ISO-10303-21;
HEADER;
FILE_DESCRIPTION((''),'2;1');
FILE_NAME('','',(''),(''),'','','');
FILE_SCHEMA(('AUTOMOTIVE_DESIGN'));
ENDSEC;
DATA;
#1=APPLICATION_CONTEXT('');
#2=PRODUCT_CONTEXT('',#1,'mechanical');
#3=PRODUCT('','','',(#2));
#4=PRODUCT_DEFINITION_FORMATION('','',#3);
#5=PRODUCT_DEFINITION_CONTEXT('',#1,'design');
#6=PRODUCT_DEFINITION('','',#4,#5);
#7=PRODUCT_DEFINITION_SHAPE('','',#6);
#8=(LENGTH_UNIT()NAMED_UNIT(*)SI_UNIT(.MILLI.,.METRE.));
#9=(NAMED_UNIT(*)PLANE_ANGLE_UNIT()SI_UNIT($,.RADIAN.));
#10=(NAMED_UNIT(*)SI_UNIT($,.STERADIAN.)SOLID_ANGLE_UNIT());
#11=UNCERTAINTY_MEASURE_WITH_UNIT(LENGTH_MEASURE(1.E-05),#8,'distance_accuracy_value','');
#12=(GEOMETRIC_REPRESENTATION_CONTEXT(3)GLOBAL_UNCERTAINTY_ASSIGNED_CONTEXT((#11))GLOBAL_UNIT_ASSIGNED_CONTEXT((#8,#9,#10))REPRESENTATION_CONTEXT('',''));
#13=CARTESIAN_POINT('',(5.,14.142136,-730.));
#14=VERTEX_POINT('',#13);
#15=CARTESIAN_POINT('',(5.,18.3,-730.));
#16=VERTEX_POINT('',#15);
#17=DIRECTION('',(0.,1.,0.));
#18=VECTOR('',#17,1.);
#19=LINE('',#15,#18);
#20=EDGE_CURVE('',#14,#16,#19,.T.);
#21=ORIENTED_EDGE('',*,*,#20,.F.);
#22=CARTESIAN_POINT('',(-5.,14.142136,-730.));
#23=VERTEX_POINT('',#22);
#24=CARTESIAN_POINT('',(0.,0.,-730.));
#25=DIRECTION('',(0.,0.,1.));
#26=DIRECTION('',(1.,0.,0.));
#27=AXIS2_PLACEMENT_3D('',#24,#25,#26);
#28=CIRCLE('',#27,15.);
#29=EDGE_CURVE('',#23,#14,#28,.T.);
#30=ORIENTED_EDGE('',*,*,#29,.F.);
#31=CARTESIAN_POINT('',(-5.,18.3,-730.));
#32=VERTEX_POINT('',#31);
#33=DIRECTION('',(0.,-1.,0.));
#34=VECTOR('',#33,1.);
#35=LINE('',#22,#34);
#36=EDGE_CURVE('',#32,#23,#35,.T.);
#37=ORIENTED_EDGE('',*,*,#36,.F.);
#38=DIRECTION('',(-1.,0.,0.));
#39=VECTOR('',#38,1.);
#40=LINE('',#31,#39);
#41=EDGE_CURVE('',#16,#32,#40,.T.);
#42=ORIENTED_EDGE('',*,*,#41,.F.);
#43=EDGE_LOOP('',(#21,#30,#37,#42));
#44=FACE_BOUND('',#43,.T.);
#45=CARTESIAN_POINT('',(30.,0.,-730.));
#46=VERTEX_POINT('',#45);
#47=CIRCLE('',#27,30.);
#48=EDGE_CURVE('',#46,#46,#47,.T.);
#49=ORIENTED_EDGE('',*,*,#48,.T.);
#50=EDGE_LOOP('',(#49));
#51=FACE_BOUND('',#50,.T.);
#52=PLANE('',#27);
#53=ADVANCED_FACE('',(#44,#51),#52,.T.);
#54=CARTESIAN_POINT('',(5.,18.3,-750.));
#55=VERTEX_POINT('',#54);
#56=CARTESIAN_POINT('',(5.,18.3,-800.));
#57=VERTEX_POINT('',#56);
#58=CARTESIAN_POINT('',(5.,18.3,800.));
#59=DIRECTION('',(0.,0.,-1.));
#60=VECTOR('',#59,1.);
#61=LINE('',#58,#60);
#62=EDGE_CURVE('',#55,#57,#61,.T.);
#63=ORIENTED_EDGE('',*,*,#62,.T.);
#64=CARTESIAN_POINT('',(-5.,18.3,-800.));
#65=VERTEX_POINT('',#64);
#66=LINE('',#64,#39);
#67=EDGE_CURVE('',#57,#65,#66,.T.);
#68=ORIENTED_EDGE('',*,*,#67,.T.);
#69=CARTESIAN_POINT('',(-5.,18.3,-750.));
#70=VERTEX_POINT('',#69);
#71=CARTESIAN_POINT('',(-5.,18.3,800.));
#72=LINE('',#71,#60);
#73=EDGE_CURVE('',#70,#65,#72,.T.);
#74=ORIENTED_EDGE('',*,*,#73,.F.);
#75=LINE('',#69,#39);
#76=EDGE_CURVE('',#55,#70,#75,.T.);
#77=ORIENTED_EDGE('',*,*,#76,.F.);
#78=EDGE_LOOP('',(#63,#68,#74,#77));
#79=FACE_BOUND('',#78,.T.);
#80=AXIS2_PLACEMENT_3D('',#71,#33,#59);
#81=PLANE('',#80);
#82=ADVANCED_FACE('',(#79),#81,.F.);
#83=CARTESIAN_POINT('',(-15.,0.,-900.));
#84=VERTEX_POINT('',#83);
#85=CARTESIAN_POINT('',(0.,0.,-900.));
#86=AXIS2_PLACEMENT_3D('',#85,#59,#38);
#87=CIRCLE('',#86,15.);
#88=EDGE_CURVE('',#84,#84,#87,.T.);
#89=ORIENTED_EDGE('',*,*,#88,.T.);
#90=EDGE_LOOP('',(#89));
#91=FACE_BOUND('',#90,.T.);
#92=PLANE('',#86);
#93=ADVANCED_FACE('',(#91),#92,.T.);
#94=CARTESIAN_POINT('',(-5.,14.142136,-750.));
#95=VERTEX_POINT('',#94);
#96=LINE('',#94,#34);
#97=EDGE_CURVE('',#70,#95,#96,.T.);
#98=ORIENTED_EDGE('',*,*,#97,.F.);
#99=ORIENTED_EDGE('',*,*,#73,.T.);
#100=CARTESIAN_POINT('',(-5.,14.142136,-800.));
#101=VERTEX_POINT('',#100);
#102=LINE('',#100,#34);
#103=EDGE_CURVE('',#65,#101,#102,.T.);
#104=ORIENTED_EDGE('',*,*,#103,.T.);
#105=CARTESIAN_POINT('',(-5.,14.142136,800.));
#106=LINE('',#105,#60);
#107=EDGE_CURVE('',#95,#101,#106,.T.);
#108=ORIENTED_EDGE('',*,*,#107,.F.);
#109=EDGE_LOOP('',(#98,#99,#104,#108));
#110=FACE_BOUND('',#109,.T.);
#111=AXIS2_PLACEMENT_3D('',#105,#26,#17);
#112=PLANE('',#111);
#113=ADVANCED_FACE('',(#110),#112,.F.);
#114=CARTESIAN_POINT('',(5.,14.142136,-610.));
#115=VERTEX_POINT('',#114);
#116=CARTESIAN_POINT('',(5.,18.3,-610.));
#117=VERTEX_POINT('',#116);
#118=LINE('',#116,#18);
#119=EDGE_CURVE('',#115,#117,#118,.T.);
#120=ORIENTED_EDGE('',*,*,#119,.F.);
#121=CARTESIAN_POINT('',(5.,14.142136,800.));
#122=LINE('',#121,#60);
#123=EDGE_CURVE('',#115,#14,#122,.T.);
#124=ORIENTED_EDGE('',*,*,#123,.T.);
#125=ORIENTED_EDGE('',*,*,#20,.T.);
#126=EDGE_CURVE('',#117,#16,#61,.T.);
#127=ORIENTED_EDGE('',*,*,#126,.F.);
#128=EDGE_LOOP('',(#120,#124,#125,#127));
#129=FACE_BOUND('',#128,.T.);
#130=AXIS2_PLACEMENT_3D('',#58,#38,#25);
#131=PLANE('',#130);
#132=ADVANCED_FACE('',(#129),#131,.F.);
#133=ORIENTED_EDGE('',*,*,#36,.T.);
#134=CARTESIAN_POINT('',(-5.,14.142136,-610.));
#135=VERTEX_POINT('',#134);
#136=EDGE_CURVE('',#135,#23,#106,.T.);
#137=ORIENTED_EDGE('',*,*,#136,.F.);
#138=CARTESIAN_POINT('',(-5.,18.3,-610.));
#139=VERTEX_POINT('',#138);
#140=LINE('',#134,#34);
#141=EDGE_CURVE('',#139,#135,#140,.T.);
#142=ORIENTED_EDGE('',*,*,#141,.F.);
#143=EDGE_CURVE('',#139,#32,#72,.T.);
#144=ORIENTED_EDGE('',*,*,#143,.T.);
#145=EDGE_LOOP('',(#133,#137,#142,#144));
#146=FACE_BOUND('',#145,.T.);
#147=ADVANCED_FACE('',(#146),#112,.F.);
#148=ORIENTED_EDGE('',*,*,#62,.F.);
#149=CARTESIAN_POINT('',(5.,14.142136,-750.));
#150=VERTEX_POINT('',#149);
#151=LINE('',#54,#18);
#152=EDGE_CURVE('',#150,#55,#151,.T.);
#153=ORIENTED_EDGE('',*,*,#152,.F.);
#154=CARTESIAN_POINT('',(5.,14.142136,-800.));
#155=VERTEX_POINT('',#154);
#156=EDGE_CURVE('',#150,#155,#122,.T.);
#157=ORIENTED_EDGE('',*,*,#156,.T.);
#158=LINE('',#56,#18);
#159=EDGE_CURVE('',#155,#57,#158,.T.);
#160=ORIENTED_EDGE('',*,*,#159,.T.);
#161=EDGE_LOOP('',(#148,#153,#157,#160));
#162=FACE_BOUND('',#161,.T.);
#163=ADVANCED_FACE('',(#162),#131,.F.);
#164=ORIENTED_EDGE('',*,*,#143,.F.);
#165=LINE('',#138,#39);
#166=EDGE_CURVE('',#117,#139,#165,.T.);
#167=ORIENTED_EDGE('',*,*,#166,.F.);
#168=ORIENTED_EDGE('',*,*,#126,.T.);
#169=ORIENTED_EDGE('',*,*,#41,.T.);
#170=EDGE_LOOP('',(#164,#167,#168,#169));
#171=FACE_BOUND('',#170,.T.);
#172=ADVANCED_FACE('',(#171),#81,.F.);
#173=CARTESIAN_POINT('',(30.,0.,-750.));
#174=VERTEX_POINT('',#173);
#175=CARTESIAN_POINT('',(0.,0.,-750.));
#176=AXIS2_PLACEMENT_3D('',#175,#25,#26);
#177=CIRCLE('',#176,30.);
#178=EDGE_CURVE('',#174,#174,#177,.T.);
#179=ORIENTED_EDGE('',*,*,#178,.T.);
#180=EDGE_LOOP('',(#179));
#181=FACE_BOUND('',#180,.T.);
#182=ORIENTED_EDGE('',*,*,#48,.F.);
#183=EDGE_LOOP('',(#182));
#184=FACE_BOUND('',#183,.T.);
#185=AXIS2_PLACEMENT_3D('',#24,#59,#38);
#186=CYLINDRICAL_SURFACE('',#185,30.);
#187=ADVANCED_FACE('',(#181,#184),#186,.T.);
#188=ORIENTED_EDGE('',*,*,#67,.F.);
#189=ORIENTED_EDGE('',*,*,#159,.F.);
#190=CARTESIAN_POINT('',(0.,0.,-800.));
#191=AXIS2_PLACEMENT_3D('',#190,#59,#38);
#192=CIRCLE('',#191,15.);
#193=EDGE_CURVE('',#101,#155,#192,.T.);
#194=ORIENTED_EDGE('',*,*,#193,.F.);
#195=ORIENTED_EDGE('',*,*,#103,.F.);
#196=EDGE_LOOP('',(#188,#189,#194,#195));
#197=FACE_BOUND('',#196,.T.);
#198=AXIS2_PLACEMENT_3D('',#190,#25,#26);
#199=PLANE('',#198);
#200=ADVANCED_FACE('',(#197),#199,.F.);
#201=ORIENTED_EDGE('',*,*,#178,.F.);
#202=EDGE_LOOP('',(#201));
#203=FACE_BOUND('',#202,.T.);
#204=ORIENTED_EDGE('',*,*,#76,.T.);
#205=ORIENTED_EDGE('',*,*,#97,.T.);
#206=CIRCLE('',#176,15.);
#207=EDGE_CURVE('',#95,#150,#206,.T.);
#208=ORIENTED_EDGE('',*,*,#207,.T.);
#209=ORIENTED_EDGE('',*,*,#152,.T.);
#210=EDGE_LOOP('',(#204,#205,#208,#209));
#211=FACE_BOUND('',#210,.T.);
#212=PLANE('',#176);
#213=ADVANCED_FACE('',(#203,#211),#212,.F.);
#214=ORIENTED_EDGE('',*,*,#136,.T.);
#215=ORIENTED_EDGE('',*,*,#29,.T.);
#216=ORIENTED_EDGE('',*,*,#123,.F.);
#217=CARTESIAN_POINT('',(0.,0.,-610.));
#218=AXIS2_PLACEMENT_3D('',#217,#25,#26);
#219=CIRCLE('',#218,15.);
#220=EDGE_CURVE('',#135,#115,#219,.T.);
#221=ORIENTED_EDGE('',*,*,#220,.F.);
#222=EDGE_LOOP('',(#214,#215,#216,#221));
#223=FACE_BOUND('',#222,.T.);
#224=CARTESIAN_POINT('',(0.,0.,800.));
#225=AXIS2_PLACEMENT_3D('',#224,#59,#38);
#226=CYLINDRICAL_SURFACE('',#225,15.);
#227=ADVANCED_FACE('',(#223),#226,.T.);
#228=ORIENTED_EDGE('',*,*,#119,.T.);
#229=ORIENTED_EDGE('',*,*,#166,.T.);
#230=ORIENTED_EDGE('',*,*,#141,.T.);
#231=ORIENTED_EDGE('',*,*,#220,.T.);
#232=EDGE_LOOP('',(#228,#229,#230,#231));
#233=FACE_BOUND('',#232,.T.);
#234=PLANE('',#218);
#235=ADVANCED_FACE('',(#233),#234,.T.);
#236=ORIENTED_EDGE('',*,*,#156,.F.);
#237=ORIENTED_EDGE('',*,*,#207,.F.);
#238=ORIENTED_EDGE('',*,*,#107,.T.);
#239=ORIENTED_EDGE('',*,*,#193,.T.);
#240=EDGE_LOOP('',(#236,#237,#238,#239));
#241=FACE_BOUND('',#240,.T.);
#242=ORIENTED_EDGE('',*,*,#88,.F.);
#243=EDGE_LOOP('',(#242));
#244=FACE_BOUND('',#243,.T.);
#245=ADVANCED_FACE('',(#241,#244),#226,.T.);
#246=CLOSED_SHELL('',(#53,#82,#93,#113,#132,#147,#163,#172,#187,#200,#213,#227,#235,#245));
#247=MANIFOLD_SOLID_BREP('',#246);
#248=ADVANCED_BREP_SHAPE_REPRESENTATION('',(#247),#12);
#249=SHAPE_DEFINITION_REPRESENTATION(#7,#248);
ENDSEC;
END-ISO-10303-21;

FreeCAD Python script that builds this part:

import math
import FreeCAD as App
import Part
import Sketcher

V = App.Vector

doc = App.newDocument("Part")
params = doc.addObject("Spreadsheet::Sheet", "Params")
for row, (alias, value) in enumerate([
    ("sketch1_radius", "15 mm"),
    ("sketch1_width", "10 mm"),
    ("pad1_length", "1600 mm"),
    ("sketch2_diameter", "60 mm"),
    ("pad2_length", "20 mm"),
    ("sketch3_diameter", "60 mm"),
    ("sketch4_diameter", "30 mm"),
    ("pad3_length", "100 mm"),
    ("sketch5_diameter", "60 mm"),
    ("pocket2_length", "20 mm"),
    ("sketch6_diameter", "60 mm"),
    ("pad4_length", "20 mm"),
], start=1):
    params.set(f"A{row}", alias)
    params.set(f"B{row}", "=" + value)
    params.setAlias(f"B{row}", alias)

body = doc.addObject("PartDesign::Body", "Body")

sketch1 = body.newObject("Sketcher::SketchObject", "Sketch")
sketch1.AttachmentSupport = (doc.getObject("XY_Plane"), [""])
sketch1.MapMode = "FlatFace"
sketch1.addGeometry(Part.LineSegment(V(-5, 18.3, 0), V(-5, 14.1, 0)), False)
sketch1.addGeometry(Part.ArcOfCircle(Part.Circle(V(0, 0, 0), V(0, 0, 1), 15), math.radians(109), math.radians(431)), False)
sketch1.addGeometry(Part.LineSegment(V(5, 14.1, 0), V(5, 18.3, 0)), False)
sketch1.addGeometry(Part.LineSegment(V(5, 18.3, 0), V(-5, 18.3, 0)), False)
sketch1.addConstraint(Sketcher.Constraint("Coincident", 0, 2, 1, 1))
sketch1.addConstraint(Sketcher.Constraint("Coincident", 1, 2, 2, 1))
sketch1.addConstraint(Sketcher.Constraint("Coincident", 2, 2, 3, 1))
sketch1.addConstraint(Sketcher.Constraint("Coincident", 3, 2, 0, 1))
sketch1.addConstraint(Sketcher.Constraint("Vertical", 0))
sketch1.addConstraint(Sketcher.Constraint("Vertical", 2))
sketch1.addConstraint(Sketcher.Constraint("Horizontal", 3))
sketch1.addConstraint(Sketcher.Constraint("Coincident", 1, 3, -1, 1))
sketch1.addConstraint(Sketcher.Constraint("Horizontal", 0, 2, 1, 2))
sketch1.addConstraint(Sketcher.Constraint("Radius", 1, 15.0))
sketch1.addConstraint(Sketcher.Constraint("DistanceX", 3, 2, 3, 1, 10.0))
sketch1.addConstraint(Sketcher.Constraint("DistanceY", -1, 1, 2, 2, 18.3))
sketch1.setExpression("Constraints[9]", "Params.sketch1_radius")
sketch1.setExpression("Constraints[10]", "Params.sketch1_width")
pad1 = body.newObject("PartDesign::Pad", "Pad")
pad1.Profile = sketch1
pad1.setExpression("Length", "Params.pad1_length")
pad1.Midplane = True

sketch2 = body.newObject("Sketcher::SketchObject", "Sketch001")
sketch2.AttachmentSupport = (doc.getObject("XY_Plane"), [""])
sketch2.MapMode = "FlatFace"
sketch2.AttachmentOffset = App.Placement(V(0, 0, 590), App.Rotation())
sketch2.addGeometry(Part.Circle(V(0, 0, 0), V(0, 0, 1), 30), False)
sketch2.addConstraint(Sketcher.Constraint("Coincident", 0, 3, -1, 1))
sketch2.addConstraint(Sketcher.Constraint("Diameter", 0, 60.0))
sketch2.setExpression("Constraints[1]", "Params.sketch2_diameter")
pad2 = body.newObject("PartDesign::Pad", "Pad001")
pad2.Profile = sketch2
pad2.setExpression("Length", "Params.pad2_length")
doc.recompute()

mirrored = body.newObject("PartDesign::Mirrored", "Mirrored")
mirrored.Originals = [pad2]
mirrored.MirrorPlane = (doc.getObject("XY_Plane"), [""])
body.Tip = mirrored

sketch3 = body.newObject("Sketcher::SketchObject", "Sketch002")
sketch3.AttachmentSupport = (doc.getObject("XY_Plane"), [""])
sketch3.MapMode = "FlatFace"
sketch3.AttachmentOffset = App.Placement(V(0, 0, -590), App.Rotation())
sketch3.addGeometry(Part.Circle(V(0, 0, 0), V(0, 0, 1), 30), False)
sketch3.addConstraint(Sketcher.Constraint("Coincident", 0, 3, -1, 1))
sketch3.addConstraint(Sketcher.Constraint("Diameter", 0, 60.0))
sketch3.setExpression("Constraints[1]", "Params.sketch3_diameter")
pocket1 = body.newObject("PartDesign::Pocket", "Pocket")
pocket1.Profile = sketch3
pocket1.Type = "ThroughAll"
pocket1.Reversed = True

sketch4 = body.newObject("Sketcher::SketchObject", "Sketch003")
sketch4.AttachmentSupport = (doc.getObject("XY_Plane"), [""])
sketch4.MapMode = "FlatFace"
sketch4.AttachmentOffset = App.Placement(V(0, 0, -800), App.Rotation())
sketch4.addGeometry(Part.Circle(V(0, 0, 0), V(0, 0, 1), 15), False)
sketch4.addConstraint(Sketcher.Constraint("Coincident", 0, 3, -1, 1))
sketch4.addConstraint(Sketcher.Constraint("Diameter", 0, 30.0))
sketch4.setExpression("Constraints[1]", "Params.sketch4_diameter")
pad3 = body.newObject("PartDesign::Pad", "Pad002")
pad3.Profile = sketch4
pad3.setExpression("Length", "Params.pad3_length")
pad3.Reversed = True

sketch5 = body.newObject("Sketcher::SketchObject", "Sketch004")
sketch5.AttachmentSupport = (doc.getObject("XY_Plane"), [""])
sketch5.MapMode = "FlatFace"
sketch5.AttachmentOffset = App.Placement(V(0, 0, -590), App.Rotation())
sketch5.addGeometry(Part.Circle(V(0, 0, 0), V(0, 0, 1), 30), False)
sketch5.addConstraint(Sketcher.Constraint("Coincident", 0, 3, -1, 1))
sketch5.addConstraint(Sketcher.Constraint("Diameter", 0, 60.0))
sketch5.setExpression("Constraints[1]", "Params.sketch5_diameter")
pocket2 = body.newObject("PartDesign::Pocket", "Pocket001")
pocket2.Profile = sketch5
pocket2.setExpression("Length", "Params.pocket2_length")

sketch6 = body.newObject("Sketcher::SketchObject", "Sketch005")
sketch6.AttachmentSupport = (doc.getObject("XY_Plane"), [""])
sketch6.MapMode = "FlatFace"
sketch6.AttachmentOffset = App.Placement(V(0, 0, -750), App.Rotation())
sketch6.addGeometry(Part.Circle(V(0, 0, 0), V(0, 0, 1), 30), False)
sketch6.addConstraint(Sketcher.Constraint("Coincident", 0, 3, -1, 1))
sketch6.addConstraint(Sketcher.Constraint("Diameter", 0, 60.0))
sketch6.setExpression("Constraints[1]", "Params.sketch6_diameter")
pad4 = body.newObject("PartDesign::Pad", "Pad003")
pad4.Profile = sketch6
pad4.setExpression("Length", "Params.pad4_length")

doc.recompute()
